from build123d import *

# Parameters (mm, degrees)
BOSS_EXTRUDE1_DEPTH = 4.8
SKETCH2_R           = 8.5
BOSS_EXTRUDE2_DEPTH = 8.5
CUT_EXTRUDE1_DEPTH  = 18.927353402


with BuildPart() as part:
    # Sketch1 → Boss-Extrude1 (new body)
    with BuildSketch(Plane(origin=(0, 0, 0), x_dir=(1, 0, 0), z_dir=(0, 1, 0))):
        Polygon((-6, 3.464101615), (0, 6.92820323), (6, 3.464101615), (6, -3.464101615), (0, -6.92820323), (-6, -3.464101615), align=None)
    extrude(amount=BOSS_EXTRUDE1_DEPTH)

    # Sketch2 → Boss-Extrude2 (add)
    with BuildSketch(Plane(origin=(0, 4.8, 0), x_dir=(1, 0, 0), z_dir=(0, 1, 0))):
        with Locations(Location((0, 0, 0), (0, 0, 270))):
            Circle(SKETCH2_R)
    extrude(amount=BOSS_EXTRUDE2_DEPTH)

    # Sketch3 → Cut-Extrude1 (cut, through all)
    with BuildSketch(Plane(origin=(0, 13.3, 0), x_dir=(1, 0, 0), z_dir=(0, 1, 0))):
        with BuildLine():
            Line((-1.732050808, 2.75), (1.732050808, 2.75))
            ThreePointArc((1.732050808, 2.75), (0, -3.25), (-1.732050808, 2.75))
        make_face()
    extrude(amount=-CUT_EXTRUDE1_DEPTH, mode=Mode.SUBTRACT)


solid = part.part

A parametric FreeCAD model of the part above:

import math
import FreeCAD as App
import Part
import Sketcher
from FreeCAD import Vector
Q = App.Units.Quantity

doc = App.newDocument("Part")
params = doc.addObject("Spreadsheet::Sheet", "Params")
for row, (alias, value) in enumerate([
    ("pad1_length", "4.8 mm"),
    ("sketch2_diameter", "17 mm"),
    ("pad2_length", "8.5 mm"),
    ("sketch3_radius", "3.25 mm"),
], start=1):
    params.set(f"A{row}", alias)
    params.set(f"B{row}", "=" + value)
    params.setAlias(f"B{row}", alias)

body = doc.addObject("PartDesign::Body", "Body")

# Sketch on XZ plane
sketch1 = body.newObject("Sketcher::SketchObject", "Sketch")
sketch1.AttachmentSupport = (doc.getObject("XZ_Plane"), [""])
sketch1.MapMode = "FlatFace"
sketch1.addGeometry([
    Part.LineSegment(Vector(0, -7, 0), Vector(-6, -3, 0)),  # 0
    Part.LineSegment(Vector(-6, -3, 0), Vector(-6, 3, 0)),  # 1
    Part.LineSegment(Vector(-6, 3, 0), Vector(0, 7, 0)),  # 2
    Part.LineSegment(Vector(0, 7, 0), Vector(6, 3, 0)),  # 3
    Part.LineSegment(Vector(6, 3, 0), Vector(6, -3, 0)),  # 4
    Part.LineSegment(Vector(6, -3, 0), Vector(0, -7, 0)),  # 5
], False)
sketch1.addConstraint([
    Sketcher.Constraint("Coincident", 0, 2, 1, 1),
    Sketcher.Constraint("Coincident", 1, 2, 2, 1),
    Sketcher.Constraint("Coincident", 2, 2, 3, 1),
    Sketcher.Constraint("Coincident", 3, 2, 4, 1),
    Sketcher.Constraint("Coincident", 4, 2, 5, 1),
    Sketcher.Constraint("Coincident", 5, 2, 0, 1),
    Sketcher.Constraint("Vertical", 1),
    Sketcher.Constraint("Vertical", 4),
    Sketcher.Constraint("Symmetric", 0, 2, 3, 2, -1, 1),
    Sketcher.Constraint("Symmetric", 2, 2, 5, 2, -1, 1),
    Sketcher.Constraint("PointOnObject", 2, 2, -2),
    Sketcher.Constraint("Parallel", 2, 5),
    Sketcher.Constraint("Horizontal", 1, 2, 3, 2),
    Sketcher.Constraint("Angle", 0, Q("150 deg")),
    Sketcher.Constraint("DistanceX", 0, 2, -1, 1, Q("6 mm")),
    Sketcher.Constraint("DistanceY", 0, 2, -1, 1, Q("3.464102 mm")),
])
pad1 = body.newObject("PartDesign::Pad", "Pad")
pad1.Profile = sketch1
pad1.setExpression("Length", "Params.pad1_length")
pad1.Reversed = True

# Sketch on XZ plane
sketch2 = body.newObject("Sketcher::SketchObject", "Sketch001")
sketch2.AttachmentSupport = (doc.getObject("XZ_Plane"), [""])
sketch2.MapMode = "FlatFace"
sketch2.AttachmentOffset = App.Placement(Vector(0, 0, -4.8), App.Rotation())
sketch2.addGeometry(Part.Circle(Vector(0, 0, 0), Vector(0, 0, 1), 8), False)
sketch2.addConstraint([
    Sketcher.Constraint("Coincident", 0, 3, -1, 1),
    Sketcher.Constraint("Diameter", 0, Q("17 mm")),
])
sketch2.setExpression("Constraints[1]", "Params.sketch2_diameter")
pad2 = body.newObject("PartDesign::Pad", "Pad001")
pad2.Profile = sketch2
pad2.setExpression("Length", "Params.pad2_length")
pad2.Reversed = True

# Sketch on XZ plane
sketch3 = body.newObject("Sketcher::SketchObject", "Sketch002")
sketch3.AttachmentSupport = (doc.getObject("XZ_Plane"), [""])
sketch3.MapMode = "FlatFace"
sketch3.AttachmentOffset = App.Placement(Vector(0, 0, -13.3), App.Rotation())
sketch3.addGeometry([
    Part.LineSegment(Vector(1.7, -2.8, 0), Vector(-1.7, -2.8, 0)),
    Part.ArcOfCircle(Part.Circle(Vector(0, 0, 0), Vector(0, 0, 1), 3.2), math.radians(-58), math.radians(238)),
], False)
sketch3.addConstraint([
    Sketcher.Constraint("Coincident", 0, 1, 1, 1),
    Sketcher.Constraint("Coincident", 1, 2, 0, 2),
    Sketcher.Constraint("Horizontal", 0),
    Sketcher.Constraint("Coincident", 1, 3, -1, 1),
    Sketcher.Constraint("Radius", 1, Q("3.25 mm")),
    Sketcher.Constraint("DistanceY", 0, 1, -1, 1, Q("2.75 mm")),
])
sketch3.setExpression("Constraints[4]", "Params.sketch3_radius")
pocket1 = body.newObject("PartDesign::Pocket", "Pocket")
pocket1.Profile = sketch3
pocket1.Type = "ThroughAll"
pocket1.Reversed = True

doc.recompute()
